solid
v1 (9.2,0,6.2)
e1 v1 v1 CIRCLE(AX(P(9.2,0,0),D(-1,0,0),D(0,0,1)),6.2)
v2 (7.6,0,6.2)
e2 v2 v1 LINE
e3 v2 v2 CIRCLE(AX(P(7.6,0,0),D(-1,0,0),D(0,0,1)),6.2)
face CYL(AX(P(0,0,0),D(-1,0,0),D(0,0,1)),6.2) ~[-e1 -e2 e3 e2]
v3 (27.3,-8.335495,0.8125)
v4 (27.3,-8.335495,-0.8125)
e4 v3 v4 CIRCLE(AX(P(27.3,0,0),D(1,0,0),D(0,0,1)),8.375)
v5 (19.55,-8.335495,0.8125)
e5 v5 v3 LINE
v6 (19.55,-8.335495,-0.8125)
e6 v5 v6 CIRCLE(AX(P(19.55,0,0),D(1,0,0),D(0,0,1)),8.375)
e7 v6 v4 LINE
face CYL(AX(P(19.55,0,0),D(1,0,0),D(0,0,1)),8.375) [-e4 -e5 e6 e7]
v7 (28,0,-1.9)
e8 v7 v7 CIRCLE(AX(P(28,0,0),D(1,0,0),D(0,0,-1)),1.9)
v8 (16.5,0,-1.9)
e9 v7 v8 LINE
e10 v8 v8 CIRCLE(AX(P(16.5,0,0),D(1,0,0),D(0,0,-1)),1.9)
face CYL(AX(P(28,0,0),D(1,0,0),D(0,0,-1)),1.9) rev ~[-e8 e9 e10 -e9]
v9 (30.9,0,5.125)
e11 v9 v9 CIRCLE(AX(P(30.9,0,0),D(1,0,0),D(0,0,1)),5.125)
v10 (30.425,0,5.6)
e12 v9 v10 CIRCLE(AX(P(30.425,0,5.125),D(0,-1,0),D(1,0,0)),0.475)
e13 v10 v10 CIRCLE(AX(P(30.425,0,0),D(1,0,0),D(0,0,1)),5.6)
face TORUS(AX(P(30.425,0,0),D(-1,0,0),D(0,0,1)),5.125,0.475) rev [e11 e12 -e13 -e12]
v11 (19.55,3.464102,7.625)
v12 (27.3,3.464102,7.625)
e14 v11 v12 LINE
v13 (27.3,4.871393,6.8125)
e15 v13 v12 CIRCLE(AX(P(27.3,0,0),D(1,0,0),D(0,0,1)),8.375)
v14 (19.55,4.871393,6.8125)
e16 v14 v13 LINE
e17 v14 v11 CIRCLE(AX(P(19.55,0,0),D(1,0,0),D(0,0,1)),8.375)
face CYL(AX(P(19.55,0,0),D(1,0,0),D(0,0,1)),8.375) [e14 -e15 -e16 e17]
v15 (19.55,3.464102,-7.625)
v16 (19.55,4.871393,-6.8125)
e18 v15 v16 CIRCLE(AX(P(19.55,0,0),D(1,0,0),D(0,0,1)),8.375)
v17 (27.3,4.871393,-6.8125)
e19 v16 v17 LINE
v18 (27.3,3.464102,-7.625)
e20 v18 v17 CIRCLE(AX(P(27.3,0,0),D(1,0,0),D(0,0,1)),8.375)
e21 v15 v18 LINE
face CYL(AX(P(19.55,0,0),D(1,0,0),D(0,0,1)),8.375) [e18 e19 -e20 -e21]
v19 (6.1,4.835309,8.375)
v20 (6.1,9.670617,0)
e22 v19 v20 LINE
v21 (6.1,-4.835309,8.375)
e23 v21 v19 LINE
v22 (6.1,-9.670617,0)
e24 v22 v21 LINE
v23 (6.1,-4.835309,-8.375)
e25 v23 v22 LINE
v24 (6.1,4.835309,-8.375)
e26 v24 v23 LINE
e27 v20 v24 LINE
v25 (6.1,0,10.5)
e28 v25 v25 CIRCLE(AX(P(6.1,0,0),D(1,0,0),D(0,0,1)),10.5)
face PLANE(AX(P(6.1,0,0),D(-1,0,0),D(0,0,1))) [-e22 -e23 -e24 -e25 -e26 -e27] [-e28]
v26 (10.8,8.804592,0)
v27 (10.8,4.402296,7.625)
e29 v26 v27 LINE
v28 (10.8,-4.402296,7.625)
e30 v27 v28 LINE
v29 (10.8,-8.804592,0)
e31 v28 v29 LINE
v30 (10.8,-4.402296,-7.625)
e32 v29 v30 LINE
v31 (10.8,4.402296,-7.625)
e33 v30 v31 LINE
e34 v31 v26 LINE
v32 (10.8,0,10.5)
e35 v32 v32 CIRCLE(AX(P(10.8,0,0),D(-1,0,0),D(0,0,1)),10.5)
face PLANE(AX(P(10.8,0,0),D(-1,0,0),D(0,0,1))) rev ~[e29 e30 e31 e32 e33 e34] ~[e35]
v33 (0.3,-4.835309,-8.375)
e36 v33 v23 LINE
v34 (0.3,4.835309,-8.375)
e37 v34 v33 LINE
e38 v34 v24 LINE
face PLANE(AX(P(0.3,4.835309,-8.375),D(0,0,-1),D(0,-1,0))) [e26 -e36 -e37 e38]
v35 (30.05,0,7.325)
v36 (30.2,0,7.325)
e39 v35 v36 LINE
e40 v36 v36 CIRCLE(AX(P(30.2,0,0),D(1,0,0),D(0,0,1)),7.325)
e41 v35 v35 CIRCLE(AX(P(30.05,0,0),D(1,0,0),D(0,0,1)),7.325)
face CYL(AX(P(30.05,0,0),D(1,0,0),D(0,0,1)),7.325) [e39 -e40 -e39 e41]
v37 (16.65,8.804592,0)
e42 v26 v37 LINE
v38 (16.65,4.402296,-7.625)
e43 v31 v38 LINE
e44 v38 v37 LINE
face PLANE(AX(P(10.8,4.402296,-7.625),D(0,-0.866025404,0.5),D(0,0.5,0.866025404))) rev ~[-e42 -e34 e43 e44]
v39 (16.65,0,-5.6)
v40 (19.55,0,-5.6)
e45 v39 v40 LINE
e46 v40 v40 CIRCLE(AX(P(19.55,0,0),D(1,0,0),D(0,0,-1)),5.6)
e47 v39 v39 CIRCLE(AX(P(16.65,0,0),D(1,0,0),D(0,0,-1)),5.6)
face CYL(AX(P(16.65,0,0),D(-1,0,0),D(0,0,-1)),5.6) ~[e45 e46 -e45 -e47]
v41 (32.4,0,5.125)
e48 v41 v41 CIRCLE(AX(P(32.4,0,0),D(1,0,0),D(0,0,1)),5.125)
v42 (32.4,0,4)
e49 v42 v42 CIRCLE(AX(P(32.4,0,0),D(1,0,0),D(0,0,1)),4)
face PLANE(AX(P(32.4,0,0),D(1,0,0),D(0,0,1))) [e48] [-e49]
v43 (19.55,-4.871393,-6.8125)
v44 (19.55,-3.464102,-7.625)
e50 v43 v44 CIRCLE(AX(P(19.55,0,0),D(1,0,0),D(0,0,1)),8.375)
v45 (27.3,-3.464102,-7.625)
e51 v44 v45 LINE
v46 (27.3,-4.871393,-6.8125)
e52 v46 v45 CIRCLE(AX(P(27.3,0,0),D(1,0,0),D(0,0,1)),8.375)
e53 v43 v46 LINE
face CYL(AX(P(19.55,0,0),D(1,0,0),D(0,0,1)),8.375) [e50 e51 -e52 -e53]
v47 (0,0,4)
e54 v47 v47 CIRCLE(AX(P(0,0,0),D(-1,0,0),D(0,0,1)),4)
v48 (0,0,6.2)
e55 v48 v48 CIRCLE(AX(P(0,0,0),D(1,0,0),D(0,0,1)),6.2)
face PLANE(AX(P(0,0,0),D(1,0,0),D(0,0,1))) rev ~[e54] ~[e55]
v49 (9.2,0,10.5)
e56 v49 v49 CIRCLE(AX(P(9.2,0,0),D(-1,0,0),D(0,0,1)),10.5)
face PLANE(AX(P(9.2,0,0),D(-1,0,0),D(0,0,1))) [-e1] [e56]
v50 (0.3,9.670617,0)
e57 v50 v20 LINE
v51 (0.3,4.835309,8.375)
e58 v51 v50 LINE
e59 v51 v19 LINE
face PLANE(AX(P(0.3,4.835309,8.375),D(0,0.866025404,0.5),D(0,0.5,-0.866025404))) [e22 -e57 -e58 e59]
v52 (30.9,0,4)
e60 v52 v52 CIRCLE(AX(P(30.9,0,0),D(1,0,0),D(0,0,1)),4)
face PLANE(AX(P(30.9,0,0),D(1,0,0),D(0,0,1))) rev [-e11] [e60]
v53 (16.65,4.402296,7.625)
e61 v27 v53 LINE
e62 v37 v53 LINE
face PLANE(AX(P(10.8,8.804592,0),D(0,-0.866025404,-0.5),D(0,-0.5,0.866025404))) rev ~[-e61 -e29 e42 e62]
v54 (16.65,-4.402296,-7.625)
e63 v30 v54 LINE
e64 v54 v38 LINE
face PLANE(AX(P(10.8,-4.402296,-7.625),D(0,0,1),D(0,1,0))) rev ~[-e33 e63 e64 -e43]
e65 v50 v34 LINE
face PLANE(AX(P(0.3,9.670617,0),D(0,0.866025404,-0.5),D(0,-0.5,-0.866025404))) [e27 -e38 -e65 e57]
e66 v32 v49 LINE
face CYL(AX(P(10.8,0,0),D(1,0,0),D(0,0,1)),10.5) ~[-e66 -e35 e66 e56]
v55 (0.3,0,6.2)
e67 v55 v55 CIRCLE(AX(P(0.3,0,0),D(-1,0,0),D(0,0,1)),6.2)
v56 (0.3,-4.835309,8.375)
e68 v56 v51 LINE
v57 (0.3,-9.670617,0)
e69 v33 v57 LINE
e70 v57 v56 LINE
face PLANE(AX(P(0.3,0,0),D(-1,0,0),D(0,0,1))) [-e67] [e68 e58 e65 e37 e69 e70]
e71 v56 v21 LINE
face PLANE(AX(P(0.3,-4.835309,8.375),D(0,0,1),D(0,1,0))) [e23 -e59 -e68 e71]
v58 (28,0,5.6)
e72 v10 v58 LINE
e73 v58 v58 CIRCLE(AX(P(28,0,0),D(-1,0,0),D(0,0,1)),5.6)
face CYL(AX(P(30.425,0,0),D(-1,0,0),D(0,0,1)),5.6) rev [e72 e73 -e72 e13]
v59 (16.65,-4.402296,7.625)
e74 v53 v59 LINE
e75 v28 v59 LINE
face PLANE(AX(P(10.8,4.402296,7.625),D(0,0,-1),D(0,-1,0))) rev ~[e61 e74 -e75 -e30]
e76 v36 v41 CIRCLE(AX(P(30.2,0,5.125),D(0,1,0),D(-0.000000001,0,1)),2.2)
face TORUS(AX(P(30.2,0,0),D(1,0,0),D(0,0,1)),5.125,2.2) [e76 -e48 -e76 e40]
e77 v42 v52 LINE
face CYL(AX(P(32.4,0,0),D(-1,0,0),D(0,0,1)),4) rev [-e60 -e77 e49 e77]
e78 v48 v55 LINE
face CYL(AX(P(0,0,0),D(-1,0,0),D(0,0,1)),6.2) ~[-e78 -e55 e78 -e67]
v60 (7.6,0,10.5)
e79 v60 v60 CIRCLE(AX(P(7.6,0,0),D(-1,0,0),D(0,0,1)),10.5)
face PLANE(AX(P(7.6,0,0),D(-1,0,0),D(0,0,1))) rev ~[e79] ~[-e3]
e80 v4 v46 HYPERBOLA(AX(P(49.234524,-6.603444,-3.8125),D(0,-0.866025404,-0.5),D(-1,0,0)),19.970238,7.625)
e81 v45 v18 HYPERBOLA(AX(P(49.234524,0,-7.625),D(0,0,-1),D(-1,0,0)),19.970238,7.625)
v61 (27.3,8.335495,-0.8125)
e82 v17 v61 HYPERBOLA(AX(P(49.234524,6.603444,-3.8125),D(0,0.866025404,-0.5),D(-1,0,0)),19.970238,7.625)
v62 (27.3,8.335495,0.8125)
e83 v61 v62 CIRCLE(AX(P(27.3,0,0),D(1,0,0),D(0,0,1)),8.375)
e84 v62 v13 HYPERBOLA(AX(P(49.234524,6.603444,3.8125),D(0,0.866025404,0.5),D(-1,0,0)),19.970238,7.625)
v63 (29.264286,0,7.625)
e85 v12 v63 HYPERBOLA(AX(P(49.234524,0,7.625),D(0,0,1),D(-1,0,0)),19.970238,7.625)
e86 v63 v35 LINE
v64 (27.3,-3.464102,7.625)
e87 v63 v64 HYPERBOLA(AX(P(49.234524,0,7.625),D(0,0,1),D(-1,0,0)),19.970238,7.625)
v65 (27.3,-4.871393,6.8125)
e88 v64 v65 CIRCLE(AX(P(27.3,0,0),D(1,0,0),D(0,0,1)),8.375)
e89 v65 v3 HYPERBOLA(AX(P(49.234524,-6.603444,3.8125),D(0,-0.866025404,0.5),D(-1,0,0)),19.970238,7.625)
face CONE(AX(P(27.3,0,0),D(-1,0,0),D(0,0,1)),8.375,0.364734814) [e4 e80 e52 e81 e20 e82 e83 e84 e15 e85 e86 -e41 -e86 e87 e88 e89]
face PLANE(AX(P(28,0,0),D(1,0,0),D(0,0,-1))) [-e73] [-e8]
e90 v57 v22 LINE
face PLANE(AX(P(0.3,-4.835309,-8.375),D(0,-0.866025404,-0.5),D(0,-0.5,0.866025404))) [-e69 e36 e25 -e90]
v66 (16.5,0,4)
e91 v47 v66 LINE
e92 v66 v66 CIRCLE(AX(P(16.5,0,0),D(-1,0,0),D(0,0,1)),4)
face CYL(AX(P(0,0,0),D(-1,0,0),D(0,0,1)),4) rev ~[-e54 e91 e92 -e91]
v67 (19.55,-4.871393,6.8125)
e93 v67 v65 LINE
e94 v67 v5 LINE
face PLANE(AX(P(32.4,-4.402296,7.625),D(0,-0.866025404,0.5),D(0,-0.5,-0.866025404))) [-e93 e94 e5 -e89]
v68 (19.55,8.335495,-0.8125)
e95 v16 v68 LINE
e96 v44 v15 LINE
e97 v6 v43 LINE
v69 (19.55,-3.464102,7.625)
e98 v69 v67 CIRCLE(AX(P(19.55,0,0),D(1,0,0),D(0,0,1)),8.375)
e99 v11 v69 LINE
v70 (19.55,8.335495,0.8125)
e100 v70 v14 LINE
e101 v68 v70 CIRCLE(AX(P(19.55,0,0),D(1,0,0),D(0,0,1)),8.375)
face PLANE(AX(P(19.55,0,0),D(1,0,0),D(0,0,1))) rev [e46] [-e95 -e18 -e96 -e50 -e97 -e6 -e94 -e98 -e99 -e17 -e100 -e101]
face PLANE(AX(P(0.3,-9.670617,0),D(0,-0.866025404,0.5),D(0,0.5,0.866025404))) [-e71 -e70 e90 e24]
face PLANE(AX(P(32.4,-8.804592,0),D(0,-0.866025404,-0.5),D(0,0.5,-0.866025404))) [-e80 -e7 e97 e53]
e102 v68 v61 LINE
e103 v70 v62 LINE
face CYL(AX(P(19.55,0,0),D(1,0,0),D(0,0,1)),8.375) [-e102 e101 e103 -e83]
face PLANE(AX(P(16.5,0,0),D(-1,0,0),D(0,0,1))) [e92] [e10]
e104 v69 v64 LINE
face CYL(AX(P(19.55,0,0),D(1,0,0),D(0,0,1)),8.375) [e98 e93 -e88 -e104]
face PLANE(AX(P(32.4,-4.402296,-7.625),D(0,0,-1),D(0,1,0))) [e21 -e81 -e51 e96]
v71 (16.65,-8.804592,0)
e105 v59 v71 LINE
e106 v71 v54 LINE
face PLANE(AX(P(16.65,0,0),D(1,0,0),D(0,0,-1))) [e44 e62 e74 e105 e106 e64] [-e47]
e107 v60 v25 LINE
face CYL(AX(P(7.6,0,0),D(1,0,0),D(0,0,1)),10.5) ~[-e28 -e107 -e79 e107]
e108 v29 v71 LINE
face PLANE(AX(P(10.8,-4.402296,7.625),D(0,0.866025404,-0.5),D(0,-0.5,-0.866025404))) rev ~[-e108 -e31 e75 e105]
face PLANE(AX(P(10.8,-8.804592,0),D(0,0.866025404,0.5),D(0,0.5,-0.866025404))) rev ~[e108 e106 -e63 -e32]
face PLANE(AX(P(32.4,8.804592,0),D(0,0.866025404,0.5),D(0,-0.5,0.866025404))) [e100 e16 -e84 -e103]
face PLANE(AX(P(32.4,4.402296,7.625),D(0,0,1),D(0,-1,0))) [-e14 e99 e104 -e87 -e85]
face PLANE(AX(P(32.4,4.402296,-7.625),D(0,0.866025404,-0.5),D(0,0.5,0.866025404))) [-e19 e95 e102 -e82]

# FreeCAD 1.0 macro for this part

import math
import FreeCAD as App
import Part
import Sketcher

V = App.Vector
Q = App.Units.Quantity


def add_polygon(sketch, points):
    """Adds a closed chain of lines whose ends are joined by coincident constraints."""
    first, n = sketch.GeometryCount, len(points)
    for a, b in zip(points, points[1:] + points[:1]):
        sketch.addGeometry(Part.LineSegment(App.Vector(*a, 0), App.Vector(*b, 0)), False)
    for i in range(n):
        sketch.addConstraint(Sketcher.Constraint("Coincident", first + i, 2, first + (i + 1) % n, 1))

doc = App.newDocument("Part")
body = doc.addObject("PartDesign::Body", "Body")

# Sketch on YZ plane
sketch1 = body.newObject("Sketcher::SketchObject", "Sketch")
sketch1.AttachmentSupport = (doc.getObject("YZ_Plane"), [""])
sketch1.MapMode = "FlatFace"
sketch1.addGeometry(Part.Circle(V(0, 0, 0), V(0, 0, 1), 6), False)
sketch1.addConstraint([
    Sketcher.Constraint("Coincident", 0, 3, -1, 1),
    Sketcher.Constraint("Diameter", 0, Q("12.4 mm")),
])
pad1 = body.newObject("PartDesign::Pad", "Pad")
pad1.Profile = sketch1
pad1.Length = 10.8

# Sketch on YZ plane
sketch2 = body.newObject("Sketcher::SketchObject", "Sketch001")
sketch2.AttachmentSupport = (doc.getObject("YZ_Plane"), [""])
sketch2.MapMode = "FlatFace"
sketch2.AttachmentOffset = App.Placement(V(0, 0, 10.8), App.Rotation())
add_polygon(sketch2, [(-9, 0), (-4, -8), (4, -8), (9, 0), (4, 8), (-4, 8)])  # lines 0-5
sketch2.addConstraint([
    Sketcher.Constraint("Horizontal", 1),
    Sketcher.Constraint("Horizontal", 4),
    Sketcher.Constraint("Symmetric", 0, 2, 3, 2, -1, 1),
    Sketcher.Constraint("Symmetric", 2, 2, 5, 2, -1, 1),
    Sketcher.Constraint("PointOnObject", 2, 2, -1),
    Sketcher.Constraint("Parallel", 2, 5),
    Sketcher.Constraint("Vertical", 1, 2, 3, 2),
    Sketcher.Constraint("Angle", 0, Q("-60 deg")),
    Sketcher.Constraint("DistanceY", 1, 2, 3, 2, Q("15.25 mm")),
    Sketcher.Constraint("DistanceX", 1, 1, 1, 2, Q("8.804592 mm")),
])
pad2 = body.newObject("PartDesign::Pad", "Pad001")
pad2.Profile = sketch2
pad2.Length = 5.85

# Sketch on YZ plane
sketch3 = body.newObject("Sketcher::SketchObject", "Sketch002")
sketch3.AttachmentSupport = (doc.getObject("YZ_Plane"), [""])
sketch3.MapMode = "FlatFace"
sketch3.AttachmentOffset = App.Placement(V(0, 0, 16.65), App.Rotation())
sketch3.addGeometry(Part.Circle(V(0, 0, 0), V(0, 0, 1), 6), False)
sketch3.addConstraint([
    Sketcher.Constraint("Coincident", 0, 3, -1, 1),
    Sketcher.Constraint("Diameter", 0, Q("11.2 mm")),
])
pad3 = body.newObject("PartDesign::Pad", "Pad002")
pad3.Profile = sketch3
pad3.Length = 11.35

# Sketch on YZ plane
sketch4 = body.newObject("Sketcher::SketchObject", "Sketch003")
sketch4.AttachmentSupport = (doc.getObject("YZ_Plane"), [""])
sketch4.MapMode = "FlatFace"
sketch4.AttachmentOffset = App.Placement(V(0, 0, 10.8), App.Rotation())
sketch4.addGeometry(Part.Circle(V(0, 0, 0), V(0, 0, 1), 10), False)
sketch4.addConstraint([
    Sketcher.Constraint("Coincident", 0, 3, -1, 1),
    Sketcher.Constraint("Diameter", 0, Q("21 mm")),
])
pad4 = body.newObject("PartDesign::Pad", "Pad003")
pad4.Profile = sketch4
pad4.Length = 1.6
pad4.Reversed = True

# Sketch on YZ plane
sketch5 = body.newObject("Sketcher::SketchObject", "Sketch004")
sketch5.AttachmentSupport = (doc.getObject("YZ_Plane"), [""])
sketch5.MapMode = "FlatFace"
sketch5.AttachmentOffset = App.Placement(V(0, 0, 7.6), App.Rotation())
sketch5.addGeometry(Part.Circle(V(0, 0, 0), V(0, 0, 1), 10), False)
sketch5.addConstraint([
    Sketcher.Constraint("Coincident", 0, 3, -1, 1),
    Sketcher.Constraint("Diameter", 0, Q("21 mm")),
])
pad5 = body.newObject("PartDesign::Pad", "Pad004")
pad5.Profile = sketch5
pad5.Length = 7.3
pad5.Reversed = True

# Sketch on YZ plane
sketch6 = body.newObject("Sketcher::SketchObject", "Sketch005")
sketch6.AttachmentSupport = (doc.getObject("YZ_Plane"), [""])
sketch6.MapMode = "FlatFace"
sketch6.AttachmentOffset = App.Placement(V(0, 0, 0.3), App.Rotation())
sketch6.addGeometry(Part.Circle(V(0, 0, 0), V(0, 0, 1), 13), False)  # 0
add_polygon(sketch6, [(-5, 8), (-10, 0), (-5, -8), (5, -8), (10, 0), (5, 8)])  # lines 1-6
sketch6.addConstraint([
    Sketcher.Constraint("Horizontal", 3),
    Sketcher.Constraint("Horizontal", 6),
    Sketcher.Constraint("Coincident", 0, 3, -1, 1),
    Sketcher.Constraint("Symmetric", 1, 2, 4, 2, -1, 1),
    Sketcher.Constraint("Symmetric", 2, 2, 5, 2, -1, 1),
    Sketcher.Constraint("PointOnObject", 1, 2, -1),
    Sketcher.Constraint("Parallel", 1, 4),
    Sketcher.Constraint("Vertical", 3, 2, 5, 2),
    Sketcher.Constraint("Diameter", 0, Q("26.75 mm")),
    Sketcher.Constraint("Angle", 1, Q("-120 deg")),
    Sketcher.Constraint("DistanceY", 3, 2, 5, 2, Q("16.75 mm")),
    Sketcher.Constraint("DistanceX", 3, 1, 3, 2, Q("9.670617 mm")),
])
pocket1 = body.newObject("PartDesign::Pocket", "Pocket")
pocket1.Profile = sketch6
pocket1.Length = 5.8
pocket1.Reversed = True

# Sketch on YZ plane
sketch7 = body.newObject("Sketcher::SketchObject", "Sketch006")
sketch7.AttachmentSupport = (doc.getObject("YZ_Plane"), [""])
sketch7.MapMode = "FlatFace"
sketch7.addGeometry(Part.Circle(V(0, 0, 0), V(0, 0, 1), 4), False)
sketch7.addConstraint([
    Sketcher.Constraint("Coincident", 0, 3, -1, 1),
    Sketcher.Constraint("Diameter", 0, Q("8 mm")),
])
pocket2 = body.newObject("PartDesign::Pocket", "Pocket001")
pocket2.Profile = sketch7
pocket2.Length = 16.5
pocket2.Reversed = True

# Sketch on YZ plane
sketch8 = body.newObject("Sketcher::SketchObject", "Sketch007")
sketch8.AttachmentSupport = (doc.getObject("YZ_Plane"), [""])
sketch8.MapMode = "FlatFace"
sketch8.AttachmentOffset = App.Placement(V(0, 0, 28), App.Rotation())
sketch8.addGeometry(Part.Circle(V(0, 0, 0), V(0, 0, 1), 1.9), False)
sketch8.addConstraint([
    Sketcher.Constraint("Coincident", 0, 3, -1, 1),
    Sketcher.Constraint("Diameter", 0, Q("3.8 mm")),
])
pocket3 = body.newObject("PartDesign::Pocket", "Pocket002")
pocket3.Profile = sketch8
pocket3.Length = 11.5

# Sketch on XY plane
sketch9 = body.newObject("Sketcher::SketchObject", "Sketch008")
sketch9.AttachmentSupport = (doc.getObject("XY_Plane"), [""])
sketch9.MapMode = "FlatFace"
sketch9.addGeometry([
    Part.LineSegment(V(27.3, 8.38, 0), V(19.55, 8.38, 0)),  # 0
    Part.LineSegment(V(19.55, 8.38, 0), V(19.55, 5.6, 0)),  # 1
    Part.LineSegment(V(19.55, 5.6, 0), V(30.43, 5.6, 0)),  # 2
    Part.ArcOfCircle(Part.Circle(V(30.43, 5.12, 0), V(0, 0, 1), 0.47), math.radians(0), math.radians(90)),  # 3
    Part.LineSegment(V(30.9, 5.12, 0), V(30.9, 4, 0)),  # 4
    Part.LineSegment(V(30.9, 4, 0), V(32.4, 4, 0)),  # 5
    Part.LineSegment(V(32.4, 4, 0), V(32.4, 5.12, 0)),  # 6
    Part.ArcOfCircle(Part.Circle(V(30.2, 5.13, 0), V(0, 0, 1), 2.2), math.radians(0), math.radians(90)),  # 7
    Part.LineSegment(V(30.2, 7.33, 0), V(30.05, 7.33, 0)),  # 8
    Part.LineSegment(V(30.05, 7.33, 0), V(27.3, 8.38, 0)),  # 9
], False)
sketch9.addConstraint([
    Sketcher.Constraint("Coincident", 0, 2, 1, 1),
    Sketcher.Constraint("Coincident", 1, 2, 2, 1),
    Sketcher.Constraint("Tangent", 2, 2, 3, 2),
    Sketcher.Constraint("Tangent", 3, 1, 4, 1),
    Sketcher.Constraint("Coincident", 4, 2, 5, 1),
    Sketcher.Constraint("Coincident", 5, 2, 6, 1),
    Sketcher.Constraint("Tangent", 6, 2, 7, 1),
    Sketcher.Constraint("Tangent", 7, 2, 8, 1),
    Sketcher.Constraint("Coincident", 8, 2, 9, 1),
    Sketcher.Constraint("Coincident", 9, 2, 0, 1),
    Sketcher.Constraint("Horizontal", 0),
    Sketcher.Constraint("Vertical", 1),
    Sketcher.Constraint("Horizontal", 2),
    Sketcher.Constraint("Vertical", 4),
    Sketcher.Constraint("Horizontal", 5),
    Sketcher.Constraint("Vertical", 6),
    Sketcher.Constraint("Horizontal", 8),
    Sketcher.Constraint("Horizontal", 3, 3, 7, 3),
    Sketcher.Constraint("Radius", 7, Q("2.2 mm")),
    Sketcher.Constraint("DistanceX", 5, 1, 5, 2, Q("1.5 mm")),
    Sketcher.Constraint("DistanceY", -1, 1, 4, 2, Q("4 mm")),
    Sketcher.Constraint("Radius", 3, Q("0.475 mm")),
    Sketcher.Constraint("DistanceX", 0, 2, 0, 1, Q("7.75 mm")),
    Sketcher.Constraint("DistanceX", 8, 2, 8, 1, Q("0.15 mm")),
    Sketcher.Constraint("DistanceX", -1, 1, 7, 3, Q("30.2 mm")),
    Sketcher.Constraint("DistanceY", -1, 1, 1, 2, Q("5.6 mm")),
    Sketcher.Constraint("DistanceX", -1, 1, 9, 2, Q("27.3 mm")),
    Sketcher.Constraint("DistanceY", 1, 2, 1, 1, Q("2.775 mm")),
])
revolution = body.newObject("PartDesign::Revolution", "Revolution")
revolution.Profile = sketch9
revolution.ReferenceAxis = (sketch9, ["H_Axis"])
revolution.Angle = 360

# Sketch on YZ plane
sketch10 = body.newObject("Sketcher::SketchObject", "Sketch009")
sketch10.AttachmentSupport = (doc.getObject("YZ_Plane"), [""])
sketch10.MapMode = "FlatFace"
sketch10.AttachmentOffset = App.Placement(V(0, 0, 32.4), App.Rotation())
sketch10.addGeometry(Part.Circle(V(0, 0, 0), V(0, 0, 1), 13), False)  # 0
add_polygon(sketch10, [(4, -8), (-4, -8), (-9, 0), (-4, 8), (4, 8), (9, 0)])  # lines 1-6
sketch10.addConstraint([
    Sketcher.Constraint("Horizontal", 1),
    Sketcher.Constraint("Horizontal", 4),
    Sketcher.Constraint("Coincident", 0, 3, -1, 1),
    Sketcher.Constraint("Symmetric", 1, 2, 4, 2, -1, 1),
    Sketcher.Constraint("Symmetric", 2, 2, 5, 2, -1, 1),
    Sketcher.Constraint("PointOnObject", 2, 2, -1),
    Sketcher.Constraint("Parallel", 3, 6),
    Sketcher.Constraint("Vertical", 1, 2, 3, 2),
    Sketcher.Constraint("Diameter", 0, Q("25.25 mm")),
    Sketcher.Constraint("Angle", 2, Q("120 deg")),
    Sketcher.Constraint("DistanceY", 1, 2, 3, 2, Q("15.25 mm")),
    Sketcher.Constraint("DistanceX", 1, 2, 1, 1, Q("8.804592 mm")),
])
pocket4 = body.newObject("PartDesign::Pocket", "Pocket003")
pocket4.Profile = sketch10
pocket4.Length = 12.85

doc.recompute()
